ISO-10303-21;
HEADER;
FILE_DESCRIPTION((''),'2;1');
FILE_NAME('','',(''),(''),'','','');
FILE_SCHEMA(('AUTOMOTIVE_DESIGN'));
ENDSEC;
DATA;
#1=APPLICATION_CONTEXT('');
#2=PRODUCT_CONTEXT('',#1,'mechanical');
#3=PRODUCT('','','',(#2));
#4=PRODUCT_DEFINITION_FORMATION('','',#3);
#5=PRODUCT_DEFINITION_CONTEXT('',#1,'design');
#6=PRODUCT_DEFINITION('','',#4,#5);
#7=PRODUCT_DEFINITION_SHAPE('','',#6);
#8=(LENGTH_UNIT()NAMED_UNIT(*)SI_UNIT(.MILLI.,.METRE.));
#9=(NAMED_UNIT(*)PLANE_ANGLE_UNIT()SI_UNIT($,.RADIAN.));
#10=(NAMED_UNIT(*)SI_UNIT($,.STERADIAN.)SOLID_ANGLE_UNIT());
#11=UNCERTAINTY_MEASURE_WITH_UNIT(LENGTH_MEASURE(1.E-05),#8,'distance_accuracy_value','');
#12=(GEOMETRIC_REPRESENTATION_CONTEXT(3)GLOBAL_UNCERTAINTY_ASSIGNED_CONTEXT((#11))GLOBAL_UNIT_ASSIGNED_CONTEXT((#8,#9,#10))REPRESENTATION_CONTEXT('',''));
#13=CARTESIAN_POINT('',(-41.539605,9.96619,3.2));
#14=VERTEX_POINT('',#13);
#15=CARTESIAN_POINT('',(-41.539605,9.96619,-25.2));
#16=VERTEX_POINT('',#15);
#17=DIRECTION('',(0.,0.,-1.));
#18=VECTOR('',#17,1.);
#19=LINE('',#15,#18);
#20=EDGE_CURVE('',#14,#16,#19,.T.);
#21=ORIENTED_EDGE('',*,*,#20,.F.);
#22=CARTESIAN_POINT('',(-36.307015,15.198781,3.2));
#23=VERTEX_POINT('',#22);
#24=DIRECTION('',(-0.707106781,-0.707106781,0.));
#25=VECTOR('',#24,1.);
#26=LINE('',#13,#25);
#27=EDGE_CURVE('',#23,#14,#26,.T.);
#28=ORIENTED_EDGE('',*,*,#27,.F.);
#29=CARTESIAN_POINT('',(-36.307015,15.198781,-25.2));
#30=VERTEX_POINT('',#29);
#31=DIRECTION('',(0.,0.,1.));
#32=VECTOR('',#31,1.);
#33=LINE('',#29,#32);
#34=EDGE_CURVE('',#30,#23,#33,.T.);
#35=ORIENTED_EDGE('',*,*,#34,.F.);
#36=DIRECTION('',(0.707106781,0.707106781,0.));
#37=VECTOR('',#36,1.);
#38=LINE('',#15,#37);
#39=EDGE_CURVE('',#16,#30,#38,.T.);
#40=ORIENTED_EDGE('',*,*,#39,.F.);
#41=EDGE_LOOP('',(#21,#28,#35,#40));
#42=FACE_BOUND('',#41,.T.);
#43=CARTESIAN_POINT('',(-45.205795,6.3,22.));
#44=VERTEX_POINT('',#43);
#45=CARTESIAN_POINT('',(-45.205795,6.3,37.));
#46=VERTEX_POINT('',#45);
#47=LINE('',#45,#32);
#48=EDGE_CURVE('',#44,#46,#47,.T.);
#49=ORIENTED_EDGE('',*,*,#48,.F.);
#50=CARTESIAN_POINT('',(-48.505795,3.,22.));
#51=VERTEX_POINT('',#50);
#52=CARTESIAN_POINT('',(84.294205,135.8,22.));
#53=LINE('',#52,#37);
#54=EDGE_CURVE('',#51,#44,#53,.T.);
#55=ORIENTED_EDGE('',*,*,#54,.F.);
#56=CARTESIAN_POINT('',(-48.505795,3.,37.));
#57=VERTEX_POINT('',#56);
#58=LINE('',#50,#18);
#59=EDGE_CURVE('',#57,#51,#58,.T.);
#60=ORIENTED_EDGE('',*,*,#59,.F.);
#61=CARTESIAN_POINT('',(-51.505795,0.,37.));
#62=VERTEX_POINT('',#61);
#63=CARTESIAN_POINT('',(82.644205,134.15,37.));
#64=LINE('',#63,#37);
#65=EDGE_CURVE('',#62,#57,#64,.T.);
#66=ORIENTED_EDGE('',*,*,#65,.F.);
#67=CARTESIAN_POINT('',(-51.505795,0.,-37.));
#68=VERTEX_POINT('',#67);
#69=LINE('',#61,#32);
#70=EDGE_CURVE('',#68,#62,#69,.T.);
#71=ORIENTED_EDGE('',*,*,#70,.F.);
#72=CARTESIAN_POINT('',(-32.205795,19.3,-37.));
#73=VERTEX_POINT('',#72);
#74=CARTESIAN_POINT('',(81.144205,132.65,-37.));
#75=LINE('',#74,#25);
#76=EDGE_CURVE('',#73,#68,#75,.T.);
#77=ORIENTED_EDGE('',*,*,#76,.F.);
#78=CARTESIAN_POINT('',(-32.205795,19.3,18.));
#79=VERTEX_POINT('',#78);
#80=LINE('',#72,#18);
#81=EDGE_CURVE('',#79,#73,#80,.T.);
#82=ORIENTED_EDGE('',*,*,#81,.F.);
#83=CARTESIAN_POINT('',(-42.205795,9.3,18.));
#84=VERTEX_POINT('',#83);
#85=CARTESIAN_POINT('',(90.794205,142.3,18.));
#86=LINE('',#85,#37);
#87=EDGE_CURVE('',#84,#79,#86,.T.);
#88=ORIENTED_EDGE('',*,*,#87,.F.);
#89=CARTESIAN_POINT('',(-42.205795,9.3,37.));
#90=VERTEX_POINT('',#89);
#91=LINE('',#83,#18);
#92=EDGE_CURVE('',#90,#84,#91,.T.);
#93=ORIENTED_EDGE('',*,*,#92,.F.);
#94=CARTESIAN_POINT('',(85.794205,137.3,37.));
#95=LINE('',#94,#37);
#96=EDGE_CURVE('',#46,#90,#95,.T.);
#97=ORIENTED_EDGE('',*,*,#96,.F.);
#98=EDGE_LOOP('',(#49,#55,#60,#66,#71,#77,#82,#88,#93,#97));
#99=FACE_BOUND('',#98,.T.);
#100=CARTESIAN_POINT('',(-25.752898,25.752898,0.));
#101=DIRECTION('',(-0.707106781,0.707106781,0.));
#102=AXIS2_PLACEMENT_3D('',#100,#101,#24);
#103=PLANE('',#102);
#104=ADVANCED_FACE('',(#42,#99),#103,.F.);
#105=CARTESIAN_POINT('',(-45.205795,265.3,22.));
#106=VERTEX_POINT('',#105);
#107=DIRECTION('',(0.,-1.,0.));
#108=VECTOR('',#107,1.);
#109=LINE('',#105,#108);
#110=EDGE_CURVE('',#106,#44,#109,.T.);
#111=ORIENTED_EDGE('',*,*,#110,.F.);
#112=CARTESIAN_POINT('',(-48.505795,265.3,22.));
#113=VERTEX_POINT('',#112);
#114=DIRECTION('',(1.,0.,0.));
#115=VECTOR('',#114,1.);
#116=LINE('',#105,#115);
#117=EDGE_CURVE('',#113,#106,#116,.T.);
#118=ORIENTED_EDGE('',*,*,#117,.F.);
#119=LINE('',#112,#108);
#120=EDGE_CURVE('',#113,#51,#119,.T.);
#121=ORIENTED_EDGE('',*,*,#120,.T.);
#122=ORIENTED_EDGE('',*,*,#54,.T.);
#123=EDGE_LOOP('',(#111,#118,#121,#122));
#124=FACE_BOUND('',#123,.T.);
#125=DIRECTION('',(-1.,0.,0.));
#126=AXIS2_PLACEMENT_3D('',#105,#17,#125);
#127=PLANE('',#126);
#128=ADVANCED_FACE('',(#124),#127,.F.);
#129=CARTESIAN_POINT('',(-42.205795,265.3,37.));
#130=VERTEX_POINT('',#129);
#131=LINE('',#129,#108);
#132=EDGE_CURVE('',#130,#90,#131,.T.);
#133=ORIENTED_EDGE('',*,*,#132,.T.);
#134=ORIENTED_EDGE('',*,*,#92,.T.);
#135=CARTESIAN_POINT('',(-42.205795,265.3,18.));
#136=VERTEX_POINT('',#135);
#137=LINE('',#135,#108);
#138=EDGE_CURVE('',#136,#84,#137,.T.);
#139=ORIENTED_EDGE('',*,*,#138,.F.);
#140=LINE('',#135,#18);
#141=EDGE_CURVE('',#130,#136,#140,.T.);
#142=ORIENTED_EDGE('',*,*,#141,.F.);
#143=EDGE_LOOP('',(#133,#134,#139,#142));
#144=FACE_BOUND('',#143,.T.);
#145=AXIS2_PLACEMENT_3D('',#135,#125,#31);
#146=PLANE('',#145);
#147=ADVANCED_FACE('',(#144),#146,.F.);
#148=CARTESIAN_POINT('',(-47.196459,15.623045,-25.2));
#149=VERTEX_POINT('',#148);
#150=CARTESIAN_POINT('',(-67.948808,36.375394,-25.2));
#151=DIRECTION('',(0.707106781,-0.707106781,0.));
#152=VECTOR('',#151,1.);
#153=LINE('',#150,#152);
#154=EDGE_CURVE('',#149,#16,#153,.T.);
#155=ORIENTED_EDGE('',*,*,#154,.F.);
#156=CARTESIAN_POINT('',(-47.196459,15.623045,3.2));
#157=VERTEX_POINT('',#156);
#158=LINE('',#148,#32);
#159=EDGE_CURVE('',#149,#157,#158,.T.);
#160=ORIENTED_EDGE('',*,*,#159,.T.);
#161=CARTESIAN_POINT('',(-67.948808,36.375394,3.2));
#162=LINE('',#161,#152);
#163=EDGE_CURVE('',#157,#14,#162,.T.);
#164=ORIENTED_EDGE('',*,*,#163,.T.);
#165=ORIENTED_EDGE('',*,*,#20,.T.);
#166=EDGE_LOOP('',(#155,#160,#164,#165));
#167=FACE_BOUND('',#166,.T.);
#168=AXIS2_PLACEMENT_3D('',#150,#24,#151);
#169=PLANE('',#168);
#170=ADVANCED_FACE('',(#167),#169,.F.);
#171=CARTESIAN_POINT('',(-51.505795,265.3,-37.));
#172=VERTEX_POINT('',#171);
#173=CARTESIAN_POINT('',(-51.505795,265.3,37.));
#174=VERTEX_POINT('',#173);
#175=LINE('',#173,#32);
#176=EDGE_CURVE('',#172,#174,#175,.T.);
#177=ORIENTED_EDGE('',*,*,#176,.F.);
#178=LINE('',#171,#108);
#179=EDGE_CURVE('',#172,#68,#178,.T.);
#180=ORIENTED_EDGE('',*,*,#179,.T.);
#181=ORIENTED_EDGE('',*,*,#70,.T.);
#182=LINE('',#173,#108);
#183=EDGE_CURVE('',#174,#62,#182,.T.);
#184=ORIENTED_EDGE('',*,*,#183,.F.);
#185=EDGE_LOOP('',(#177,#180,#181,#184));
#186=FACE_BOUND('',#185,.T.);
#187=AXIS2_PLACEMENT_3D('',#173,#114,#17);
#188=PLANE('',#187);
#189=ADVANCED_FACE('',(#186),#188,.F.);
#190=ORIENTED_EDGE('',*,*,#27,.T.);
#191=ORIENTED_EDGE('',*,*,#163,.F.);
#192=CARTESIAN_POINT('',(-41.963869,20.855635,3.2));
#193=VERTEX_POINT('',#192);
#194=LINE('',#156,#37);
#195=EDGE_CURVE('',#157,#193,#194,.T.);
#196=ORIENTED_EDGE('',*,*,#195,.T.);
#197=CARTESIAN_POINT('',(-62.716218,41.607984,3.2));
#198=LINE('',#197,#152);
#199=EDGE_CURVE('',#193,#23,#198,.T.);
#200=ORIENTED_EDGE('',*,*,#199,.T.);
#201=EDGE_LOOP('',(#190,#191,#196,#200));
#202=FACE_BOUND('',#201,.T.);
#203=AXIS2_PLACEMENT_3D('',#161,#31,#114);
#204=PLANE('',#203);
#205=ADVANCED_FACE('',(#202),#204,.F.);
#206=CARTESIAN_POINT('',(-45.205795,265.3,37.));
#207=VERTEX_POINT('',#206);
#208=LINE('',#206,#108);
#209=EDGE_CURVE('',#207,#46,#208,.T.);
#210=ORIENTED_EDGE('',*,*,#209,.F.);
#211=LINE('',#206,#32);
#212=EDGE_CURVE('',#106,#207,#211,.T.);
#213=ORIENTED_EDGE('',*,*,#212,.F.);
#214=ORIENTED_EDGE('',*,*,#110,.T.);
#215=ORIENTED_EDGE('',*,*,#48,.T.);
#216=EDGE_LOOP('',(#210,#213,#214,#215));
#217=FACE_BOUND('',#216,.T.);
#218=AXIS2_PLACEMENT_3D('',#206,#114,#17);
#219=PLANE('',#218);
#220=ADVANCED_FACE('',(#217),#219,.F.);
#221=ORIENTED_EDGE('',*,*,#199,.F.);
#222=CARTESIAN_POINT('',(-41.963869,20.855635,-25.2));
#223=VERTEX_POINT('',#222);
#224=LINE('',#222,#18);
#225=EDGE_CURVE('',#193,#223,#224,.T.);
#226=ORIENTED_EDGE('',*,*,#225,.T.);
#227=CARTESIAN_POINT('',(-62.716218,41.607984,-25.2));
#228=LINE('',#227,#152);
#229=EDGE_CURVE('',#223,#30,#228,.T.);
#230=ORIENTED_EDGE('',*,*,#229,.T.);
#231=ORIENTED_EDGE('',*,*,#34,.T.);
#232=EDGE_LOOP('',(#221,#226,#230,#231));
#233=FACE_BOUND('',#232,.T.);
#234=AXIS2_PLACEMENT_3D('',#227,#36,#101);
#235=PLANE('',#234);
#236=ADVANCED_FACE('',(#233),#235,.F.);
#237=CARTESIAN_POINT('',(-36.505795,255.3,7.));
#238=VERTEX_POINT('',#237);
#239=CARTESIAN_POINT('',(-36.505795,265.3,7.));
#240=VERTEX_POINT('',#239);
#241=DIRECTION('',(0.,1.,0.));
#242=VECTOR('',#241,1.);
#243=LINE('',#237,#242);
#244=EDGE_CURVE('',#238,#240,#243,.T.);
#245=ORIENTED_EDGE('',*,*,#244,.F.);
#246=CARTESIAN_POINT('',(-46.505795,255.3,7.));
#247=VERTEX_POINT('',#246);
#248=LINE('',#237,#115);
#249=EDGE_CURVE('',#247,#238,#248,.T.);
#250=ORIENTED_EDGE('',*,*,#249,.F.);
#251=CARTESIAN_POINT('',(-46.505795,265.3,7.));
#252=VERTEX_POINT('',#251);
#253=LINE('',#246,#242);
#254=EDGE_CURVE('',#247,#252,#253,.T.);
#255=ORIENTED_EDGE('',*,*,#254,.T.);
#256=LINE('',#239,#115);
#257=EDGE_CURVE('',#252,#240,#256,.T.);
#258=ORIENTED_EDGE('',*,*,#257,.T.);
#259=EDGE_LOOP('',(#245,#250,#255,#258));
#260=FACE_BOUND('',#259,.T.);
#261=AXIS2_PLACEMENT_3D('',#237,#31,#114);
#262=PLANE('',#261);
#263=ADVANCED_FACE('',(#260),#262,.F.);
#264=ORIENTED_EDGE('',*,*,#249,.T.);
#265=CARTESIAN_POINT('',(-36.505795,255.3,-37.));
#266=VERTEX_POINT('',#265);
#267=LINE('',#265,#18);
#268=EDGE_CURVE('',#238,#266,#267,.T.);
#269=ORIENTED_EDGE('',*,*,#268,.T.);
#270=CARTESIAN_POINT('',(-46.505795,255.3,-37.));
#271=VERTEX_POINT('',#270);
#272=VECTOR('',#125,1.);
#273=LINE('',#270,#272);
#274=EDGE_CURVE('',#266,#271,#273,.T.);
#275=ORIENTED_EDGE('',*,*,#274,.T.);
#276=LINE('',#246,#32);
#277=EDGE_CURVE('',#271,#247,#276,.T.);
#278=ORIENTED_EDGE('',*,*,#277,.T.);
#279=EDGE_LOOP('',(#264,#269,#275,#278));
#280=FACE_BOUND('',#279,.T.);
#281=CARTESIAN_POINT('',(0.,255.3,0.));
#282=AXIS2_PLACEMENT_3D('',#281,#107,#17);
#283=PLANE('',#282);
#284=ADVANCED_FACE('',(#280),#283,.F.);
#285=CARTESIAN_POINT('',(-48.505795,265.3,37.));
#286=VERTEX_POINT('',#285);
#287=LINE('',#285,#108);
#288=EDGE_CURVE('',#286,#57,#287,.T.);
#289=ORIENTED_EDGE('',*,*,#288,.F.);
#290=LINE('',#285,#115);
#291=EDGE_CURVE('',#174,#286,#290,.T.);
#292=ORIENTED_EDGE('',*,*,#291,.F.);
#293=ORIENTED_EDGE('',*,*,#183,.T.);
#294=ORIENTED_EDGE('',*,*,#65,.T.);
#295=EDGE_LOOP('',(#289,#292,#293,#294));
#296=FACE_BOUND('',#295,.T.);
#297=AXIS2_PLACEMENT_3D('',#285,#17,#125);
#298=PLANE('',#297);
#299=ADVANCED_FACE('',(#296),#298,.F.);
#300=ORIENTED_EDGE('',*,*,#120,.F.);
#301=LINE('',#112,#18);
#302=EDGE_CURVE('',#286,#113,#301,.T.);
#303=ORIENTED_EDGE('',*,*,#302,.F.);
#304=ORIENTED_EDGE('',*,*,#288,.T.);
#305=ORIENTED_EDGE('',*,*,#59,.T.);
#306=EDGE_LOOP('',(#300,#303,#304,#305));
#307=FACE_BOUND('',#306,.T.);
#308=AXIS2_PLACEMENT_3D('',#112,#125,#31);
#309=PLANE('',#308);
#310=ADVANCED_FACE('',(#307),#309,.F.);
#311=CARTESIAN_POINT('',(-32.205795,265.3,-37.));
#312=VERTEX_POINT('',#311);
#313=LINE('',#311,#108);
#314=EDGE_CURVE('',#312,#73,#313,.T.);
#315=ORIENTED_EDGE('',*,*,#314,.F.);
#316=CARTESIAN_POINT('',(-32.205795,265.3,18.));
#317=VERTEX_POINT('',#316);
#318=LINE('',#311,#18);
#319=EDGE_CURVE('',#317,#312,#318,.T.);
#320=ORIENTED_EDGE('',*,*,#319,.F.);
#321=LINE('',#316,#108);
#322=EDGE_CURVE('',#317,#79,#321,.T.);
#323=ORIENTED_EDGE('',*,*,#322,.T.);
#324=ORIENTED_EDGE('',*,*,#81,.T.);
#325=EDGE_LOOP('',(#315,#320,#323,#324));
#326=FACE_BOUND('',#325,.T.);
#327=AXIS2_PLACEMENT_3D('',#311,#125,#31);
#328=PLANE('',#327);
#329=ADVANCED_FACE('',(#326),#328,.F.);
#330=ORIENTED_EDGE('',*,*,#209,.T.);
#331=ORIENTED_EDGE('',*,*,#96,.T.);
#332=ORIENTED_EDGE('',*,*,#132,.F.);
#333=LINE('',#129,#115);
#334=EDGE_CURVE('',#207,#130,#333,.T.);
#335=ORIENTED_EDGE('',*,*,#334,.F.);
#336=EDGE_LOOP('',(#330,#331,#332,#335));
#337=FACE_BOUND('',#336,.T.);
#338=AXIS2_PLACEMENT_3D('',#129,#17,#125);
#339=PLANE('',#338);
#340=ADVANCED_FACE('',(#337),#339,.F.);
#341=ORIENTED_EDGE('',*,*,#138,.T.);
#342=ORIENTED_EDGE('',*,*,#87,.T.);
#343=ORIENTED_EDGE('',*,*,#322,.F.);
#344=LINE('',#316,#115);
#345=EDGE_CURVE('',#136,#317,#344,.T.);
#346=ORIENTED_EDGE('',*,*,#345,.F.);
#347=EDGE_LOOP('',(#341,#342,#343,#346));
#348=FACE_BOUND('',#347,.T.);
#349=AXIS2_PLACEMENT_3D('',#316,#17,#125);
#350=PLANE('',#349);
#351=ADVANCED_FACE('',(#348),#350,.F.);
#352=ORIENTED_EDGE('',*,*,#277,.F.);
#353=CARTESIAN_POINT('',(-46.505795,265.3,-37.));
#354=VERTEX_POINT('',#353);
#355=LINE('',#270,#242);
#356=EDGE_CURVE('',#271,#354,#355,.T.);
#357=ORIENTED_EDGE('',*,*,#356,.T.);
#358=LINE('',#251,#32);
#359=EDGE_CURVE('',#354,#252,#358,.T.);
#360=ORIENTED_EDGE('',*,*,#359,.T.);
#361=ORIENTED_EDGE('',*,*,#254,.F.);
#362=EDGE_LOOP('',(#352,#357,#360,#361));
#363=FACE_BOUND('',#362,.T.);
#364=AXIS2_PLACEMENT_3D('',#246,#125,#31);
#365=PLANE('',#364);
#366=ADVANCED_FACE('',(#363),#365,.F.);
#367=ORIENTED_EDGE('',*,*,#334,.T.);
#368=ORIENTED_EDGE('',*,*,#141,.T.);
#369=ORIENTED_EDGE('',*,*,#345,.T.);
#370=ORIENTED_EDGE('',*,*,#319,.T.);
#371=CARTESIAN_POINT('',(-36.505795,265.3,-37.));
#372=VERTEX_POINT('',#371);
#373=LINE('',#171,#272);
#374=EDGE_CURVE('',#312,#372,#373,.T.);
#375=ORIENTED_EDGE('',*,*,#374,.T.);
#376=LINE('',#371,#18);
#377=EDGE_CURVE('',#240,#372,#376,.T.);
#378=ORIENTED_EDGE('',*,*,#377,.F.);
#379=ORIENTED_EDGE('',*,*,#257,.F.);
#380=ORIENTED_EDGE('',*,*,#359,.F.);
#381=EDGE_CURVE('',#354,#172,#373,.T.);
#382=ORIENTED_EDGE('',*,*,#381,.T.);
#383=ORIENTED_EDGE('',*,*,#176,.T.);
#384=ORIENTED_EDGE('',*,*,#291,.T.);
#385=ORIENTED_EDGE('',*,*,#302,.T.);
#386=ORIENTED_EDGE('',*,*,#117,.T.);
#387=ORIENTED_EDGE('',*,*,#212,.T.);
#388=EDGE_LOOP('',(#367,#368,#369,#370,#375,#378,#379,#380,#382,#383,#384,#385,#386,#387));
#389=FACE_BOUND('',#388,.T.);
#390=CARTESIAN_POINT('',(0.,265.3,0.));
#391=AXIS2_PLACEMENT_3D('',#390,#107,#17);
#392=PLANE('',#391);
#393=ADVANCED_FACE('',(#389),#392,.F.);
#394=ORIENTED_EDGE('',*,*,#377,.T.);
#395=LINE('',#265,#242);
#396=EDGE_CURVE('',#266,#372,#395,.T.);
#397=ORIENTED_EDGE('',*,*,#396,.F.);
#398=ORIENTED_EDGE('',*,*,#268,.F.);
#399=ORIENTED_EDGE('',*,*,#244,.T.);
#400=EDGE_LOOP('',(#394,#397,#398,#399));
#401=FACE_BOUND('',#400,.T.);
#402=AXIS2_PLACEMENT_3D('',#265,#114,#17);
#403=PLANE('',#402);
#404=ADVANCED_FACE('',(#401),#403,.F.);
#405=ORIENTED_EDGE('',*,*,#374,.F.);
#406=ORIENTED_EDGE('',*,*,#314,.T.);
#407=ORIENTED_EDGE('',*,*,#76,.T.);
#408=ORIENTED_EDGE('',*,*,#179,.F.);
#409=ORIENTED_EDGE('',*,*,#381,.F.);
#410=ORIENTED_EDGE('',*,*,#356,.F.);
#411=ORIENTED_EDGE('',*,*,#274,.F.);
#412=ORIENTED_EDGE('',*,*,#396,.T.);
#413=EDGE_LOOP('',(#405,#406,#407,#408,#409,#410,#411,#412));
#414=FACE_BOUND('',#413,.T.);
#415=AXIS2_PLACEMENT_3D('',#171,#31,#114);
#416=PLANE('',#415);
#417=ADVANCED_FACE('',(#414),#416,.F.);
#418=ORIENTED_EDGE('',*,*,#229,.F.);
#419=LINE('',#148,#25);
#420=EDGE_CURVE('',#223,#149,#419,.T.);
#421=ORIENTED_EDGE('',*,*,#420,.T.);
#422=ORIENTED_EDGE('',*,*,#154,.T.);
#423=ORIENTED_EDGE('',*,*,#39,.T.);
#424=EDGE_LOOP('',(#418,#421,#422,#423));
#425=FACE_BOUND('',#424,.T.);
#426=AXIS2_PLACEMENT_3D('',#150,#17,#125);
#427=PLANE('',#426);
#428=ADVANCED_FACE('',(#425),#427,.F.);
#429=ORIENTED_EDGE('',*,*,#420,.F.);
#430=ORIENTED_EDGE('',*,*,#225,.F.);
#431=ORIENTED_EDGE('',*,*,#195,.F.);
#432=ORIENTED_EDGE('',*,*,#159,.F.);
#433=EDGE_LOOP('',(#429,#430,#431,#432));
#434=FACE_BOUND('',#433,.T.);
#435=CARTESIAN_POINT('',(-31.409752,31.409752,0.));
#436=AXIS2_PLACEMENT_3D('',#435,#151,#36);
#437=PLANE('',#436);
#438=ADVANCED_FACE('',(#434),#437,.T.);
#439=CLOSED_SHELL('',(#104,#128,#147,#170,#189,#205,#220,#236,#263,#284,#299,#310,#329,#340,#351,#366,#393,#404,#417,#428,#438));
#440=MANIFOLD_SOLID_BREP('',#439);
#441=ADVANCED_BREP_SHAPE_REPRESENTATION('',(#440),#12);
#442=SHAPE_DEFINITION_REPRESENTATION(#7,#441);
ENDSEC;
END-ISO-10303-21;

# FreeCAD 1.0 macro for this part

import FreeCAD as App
import Part
import Sketcher
from FreeCAD import Vector
Q = App.Units.Quantity


def add_polygon(sketch, points):
    """Adds a closed chain of lines whose ends are joined by coincident constraints."""
    first, n = sketch.GeometryCount, len(points)
    for a, b in zip(points, points[1:] + points[:1]):
        sketch.addGeometry(Part.LineSegment(App.Vector(*a, 0), App.Vector(*b, 0)), False)
    for i in range(n):
        sketch.addConstraint(Sketcher.Constraint("Coincident", first + i, 2, first + (i + 1) % n, 1))

doc = App.newDocument("Part")
body = doc.addObject("PartDesign::Body", "Body")

# Sketch on XZ plane
sketch1 = body.newObject("Sketcher::SketchObject", "Sketch")
sketch1.AttachmentSupport = (doc.getObject("XZ_Plane"), [""])
sketch1.MapMode = "FlatFace"
add_polygon(sketch1, [(-32.2, -37), (-51.5, -37), (-51.5, 37), (-48.5, 37), (-48.5, 22), (-45.2, 22), (-45.2, 37), (-42.2, 37), (-42.2, 18), (-32.2, 18)])  # lines 0-9
sketch1.addConstraint(Sketcher.Constraint("Horizontal", 0))
sketch1.addConstraint(Sketcher.Constraint("Vertical", 1))
sketch1.addConstraint(Sketcher.Constraint("Horizontal", 2))
sketch1.addConstraint(Sketcher.Constraint("Vertical", 3))
sketch1.addConstraint(Sketcher.Constraint("Horizontal", 4))
sketch1.addConstraint(Sketcher.Constraint("Vertical", 5))
sketch1.addConstraint(Sketcher.Constraint("Horizontal", 6))
sketch1.addConstraint(Sketcher.Constraint("Vertical", 7))
sketch1.addConstraint(Sketcher.Constraint("Horizontal", 8))
sketch1.addConstraint(Sketcher.Constraint("Vertical", 9))
sketch1.addConstraint(Sketcher.Constraint("Horizontal", 2, 2, 5, 2))
sketch1.addConstraint(Sketcher.Constraint("Equal", 2, 6))
sketch1.addConstraint(Sketcher.Constraint("DistanceX", 2, 1, 2, 2, Q("3 mm")))
sketch1.addConstraint(Sketcher.Constraint("DistanceX", 8, 1, 8, 2, Q("10 mm")))
sketch1.addConstraint(Sketcher.Constraint("DistanceY", 1, 1, 1, 2, Q("74 mm")))
sketch1.addConstraint(Sketcher.Constraint("DistanceY", 3, 2, 3, 1, Q("15 mm")))
sketch1.addConstraint(Sketcher.Constraint("DistanceY", 7, 2, 7, 1, Q("19 mm")))
sketch1.addConstraint(Sketcher.Constraint("DistanceX", 0, 2, 0, 1, Q("19.3 mm")))
sketch1.addConstraint(Sketcher.Constraint("DistanceY", 0, 2, -1, 1, Q("37 mm")))
sketch1.addConstraint(Sketcher.Constraint("DistanceX", 0, 2, -1, 1, Q("51.505795 mm")))
pad1 = body.newObject("PartDesign::Pad", "Pad")
pad1.Profile = sketch1
pad1.Length = 265.3
pad1.Reversed = True

# Sketch on XZ plane
sketch2 = body.newObject("Sketcher::SketchObject", "Sketch001")
sketch2.AttachmentSupport = (doc.getObject("XZ_Plane"), [""])
sketch2.MapMode = "FlatFace"
sketch2.AttachmentOffset = App.Placement(Vector(0, 0, -265.3), App.Rotation())
add_polygon(sketch2, [(-47, -37), (-47, 7), (-37, 7), (-37, -37)])  # lines 0-3
sketch2.addConstraint(Sketcher.Constraint("Vertical", 0))
sketch2.addConstraint(Sketcher.Constraint("Horizontal", 1))
sketch2.addConstraint(Sketcher.Constraint("Vertical", 2))
sketch2.addConstraint(Sketcher.Constraint("Horizontal", 3))
sketch2.addConstraint(Sketcher.Constraint("DistanceX", 1, 1, 1, 2, Q("10 mm")))
sketch2.addConstraint(Sketcher.Constraint("DistanceY", 0, 1, 0, 2, Q("44 mm")))
sketch2.addConstraint(Sketcher.Constraint("DistanceY", -1, 1, 0, 2, Q("7 mm")))
sketch2.addConstraint(Sketcher.Constraint("DistanceX", 0, 2, -1, 1, Q("46.505795 mm")))
pocket1 = body.newObject("PartDesign::Pocket", "Pocket")
pocket1.Profile = sketch2
pocket1.Length = 10
pocket1.Reversed = True

# Sketch on an angled plane
sketch3 = body.newObject("Sketcher::SketchObject", "Sketch002")
sketch3.Placement = App.Placement(Vector(-25.752898, 25.752898, 0), App.Rotation(Vector(0, 0, 1), Vector(-0.707106781, -0.707106781, 0), Vector(0.707106781, -0.707106781, 0), "ZXY"))
add_polygon(sketch3, [(-132, 99), (-132, -60), (139, -60), (139, 99)])  # lines 0-3
sketch3.addConstraint(Sketcher.Constraint("Vertical", 0))
sketch3.addConstraint(Sketcher.Constraint("Horizontal", 1))
sketch3.addConstraint(Sketcher.Constraint("Vertical", 2))
sketch3.addConstraint(Sketcher.Constraint("Horizontal", 3))
sketch3.addConstraint(Sketcher.Constraint("DistanceY", 0, 2, 0, 1, Q("159.03985 mm")))
sketch3.addConstraint(Sketcher.Constraint("DistanceX", 1, 1, 1, 2, Q("271.149403 mm")))
sketch3.addConstraint(Sketcher.Constraint("DistanceY", 0, 2, -1, 1, Q("59.996062 mm")))
sketch3.addConstraint(Sketcher.Constraint("DistanceX", -1, 1, 1, 2, Q("138.65029 mm")))
pocket2 = body.newObject("PartDesign::Pocket", "Pocket001")
pocket2.Profile = sketch3
pocket2.Length = 31
pocket2.Reversed = True

# Sketch on an angled plane
sketch4 = body.newObject("Sketcher::SketchObject", "Sketch003")
sketch4.Placement = App.Placement(Vector(-25.752898, 25.752898, 0), App.Rotation(Vector(0, 0, -1), Vector(0.707106781, 0.707106781, 0), Vector(0.707106781, -0.707106781, 0), "ZXY"))
add_polygon(sketch4, [(-3, -15), (-3, -22), (25, -22), (25, -15)])  # lines 0-3
sketch4.addConstraint(Sketcher.Constraint("Vertical", 0))
sketch4.addConstraint(Sketcher.Constraint("Horizontal", 1))
sketch4.addConstraint(Sketcher.Constraint("Vertical", 2))
sketch4.addConstraint(Sketcher.Constraint("Horizontal", 3))
sketch4.addConstraint(Sketcher.Constraint("DistanceX", 1, 1, 1, 2, Q("28 mm")))
sketch4.addConstraint(Sketcher.Constraint("DistanceY", 0, 2, 0, 1, Q("7 mm")))
sketch4.addConstraint(Sketcher.Constraint("DistanceX", 0, 2, -1, 1, Q("3 mm")))
sketch4.addConstraint(Sketcher.Constraint("DistanceY", 0, 2, -1, 1, Q("22.125775 mm")))
pocket3 = body.newObject("PartDesign::Pocket", "Pocket002")
pocket3.Profile = sketch4
pocket3.Length = 8

# Sketch on an angled plane
sketch5 = body.newObject("Sketcher::SketchObject", "Sketch004")
sketch5.Placement = App.Placement(Vector(-25.752898, 25.752898, 0), App.Rotation(Vector(0, 0, -1), Vector(0.707106781, 0.707106781, 0), Vector(0.707106781, -0.707106781, 0), "ZXY"))
add_polygon(sketch5, [(-3, -15), (-3, -22), (25, -22), (25, -15)])  # lines 0-3
sketch5.addConstraint(Sketcher.Constraint("Vertical", 0))
sketch5.addConstraint(Sketcher.Constraint("Horizontal", 1))
sketch5.addConstraint(Sketcher.Constraint("Vertical", 2))
sketch5.addConstraint(Sketcher.Constraint("Horizontal", 3))
sketch5.addConstraint(Sketcher.Constraint("DistanceX", 1, 1, 1, 2, Q("28.4 mm")))
sketch5.addConstraint(Sketcher.Constraint("DistanceY", 0, 2, 0, 1, Q("7.4 mm")))
sketch5.addConstraint(Sketcher.Constraint("DistanceX", 0, 2, -1, 1, Q("3.2 mm")))
sketch5.addConstraint(Sketcher.Constraint("DistanceY", 0, 2, -1, 1, Q("22.325775 mm")))
pocket4 = body.newObject("PartDesign::Pocket", "Pocket003")
pocket4.Profile = sketch5
pocket4.Length = 8

doc.recompute()
